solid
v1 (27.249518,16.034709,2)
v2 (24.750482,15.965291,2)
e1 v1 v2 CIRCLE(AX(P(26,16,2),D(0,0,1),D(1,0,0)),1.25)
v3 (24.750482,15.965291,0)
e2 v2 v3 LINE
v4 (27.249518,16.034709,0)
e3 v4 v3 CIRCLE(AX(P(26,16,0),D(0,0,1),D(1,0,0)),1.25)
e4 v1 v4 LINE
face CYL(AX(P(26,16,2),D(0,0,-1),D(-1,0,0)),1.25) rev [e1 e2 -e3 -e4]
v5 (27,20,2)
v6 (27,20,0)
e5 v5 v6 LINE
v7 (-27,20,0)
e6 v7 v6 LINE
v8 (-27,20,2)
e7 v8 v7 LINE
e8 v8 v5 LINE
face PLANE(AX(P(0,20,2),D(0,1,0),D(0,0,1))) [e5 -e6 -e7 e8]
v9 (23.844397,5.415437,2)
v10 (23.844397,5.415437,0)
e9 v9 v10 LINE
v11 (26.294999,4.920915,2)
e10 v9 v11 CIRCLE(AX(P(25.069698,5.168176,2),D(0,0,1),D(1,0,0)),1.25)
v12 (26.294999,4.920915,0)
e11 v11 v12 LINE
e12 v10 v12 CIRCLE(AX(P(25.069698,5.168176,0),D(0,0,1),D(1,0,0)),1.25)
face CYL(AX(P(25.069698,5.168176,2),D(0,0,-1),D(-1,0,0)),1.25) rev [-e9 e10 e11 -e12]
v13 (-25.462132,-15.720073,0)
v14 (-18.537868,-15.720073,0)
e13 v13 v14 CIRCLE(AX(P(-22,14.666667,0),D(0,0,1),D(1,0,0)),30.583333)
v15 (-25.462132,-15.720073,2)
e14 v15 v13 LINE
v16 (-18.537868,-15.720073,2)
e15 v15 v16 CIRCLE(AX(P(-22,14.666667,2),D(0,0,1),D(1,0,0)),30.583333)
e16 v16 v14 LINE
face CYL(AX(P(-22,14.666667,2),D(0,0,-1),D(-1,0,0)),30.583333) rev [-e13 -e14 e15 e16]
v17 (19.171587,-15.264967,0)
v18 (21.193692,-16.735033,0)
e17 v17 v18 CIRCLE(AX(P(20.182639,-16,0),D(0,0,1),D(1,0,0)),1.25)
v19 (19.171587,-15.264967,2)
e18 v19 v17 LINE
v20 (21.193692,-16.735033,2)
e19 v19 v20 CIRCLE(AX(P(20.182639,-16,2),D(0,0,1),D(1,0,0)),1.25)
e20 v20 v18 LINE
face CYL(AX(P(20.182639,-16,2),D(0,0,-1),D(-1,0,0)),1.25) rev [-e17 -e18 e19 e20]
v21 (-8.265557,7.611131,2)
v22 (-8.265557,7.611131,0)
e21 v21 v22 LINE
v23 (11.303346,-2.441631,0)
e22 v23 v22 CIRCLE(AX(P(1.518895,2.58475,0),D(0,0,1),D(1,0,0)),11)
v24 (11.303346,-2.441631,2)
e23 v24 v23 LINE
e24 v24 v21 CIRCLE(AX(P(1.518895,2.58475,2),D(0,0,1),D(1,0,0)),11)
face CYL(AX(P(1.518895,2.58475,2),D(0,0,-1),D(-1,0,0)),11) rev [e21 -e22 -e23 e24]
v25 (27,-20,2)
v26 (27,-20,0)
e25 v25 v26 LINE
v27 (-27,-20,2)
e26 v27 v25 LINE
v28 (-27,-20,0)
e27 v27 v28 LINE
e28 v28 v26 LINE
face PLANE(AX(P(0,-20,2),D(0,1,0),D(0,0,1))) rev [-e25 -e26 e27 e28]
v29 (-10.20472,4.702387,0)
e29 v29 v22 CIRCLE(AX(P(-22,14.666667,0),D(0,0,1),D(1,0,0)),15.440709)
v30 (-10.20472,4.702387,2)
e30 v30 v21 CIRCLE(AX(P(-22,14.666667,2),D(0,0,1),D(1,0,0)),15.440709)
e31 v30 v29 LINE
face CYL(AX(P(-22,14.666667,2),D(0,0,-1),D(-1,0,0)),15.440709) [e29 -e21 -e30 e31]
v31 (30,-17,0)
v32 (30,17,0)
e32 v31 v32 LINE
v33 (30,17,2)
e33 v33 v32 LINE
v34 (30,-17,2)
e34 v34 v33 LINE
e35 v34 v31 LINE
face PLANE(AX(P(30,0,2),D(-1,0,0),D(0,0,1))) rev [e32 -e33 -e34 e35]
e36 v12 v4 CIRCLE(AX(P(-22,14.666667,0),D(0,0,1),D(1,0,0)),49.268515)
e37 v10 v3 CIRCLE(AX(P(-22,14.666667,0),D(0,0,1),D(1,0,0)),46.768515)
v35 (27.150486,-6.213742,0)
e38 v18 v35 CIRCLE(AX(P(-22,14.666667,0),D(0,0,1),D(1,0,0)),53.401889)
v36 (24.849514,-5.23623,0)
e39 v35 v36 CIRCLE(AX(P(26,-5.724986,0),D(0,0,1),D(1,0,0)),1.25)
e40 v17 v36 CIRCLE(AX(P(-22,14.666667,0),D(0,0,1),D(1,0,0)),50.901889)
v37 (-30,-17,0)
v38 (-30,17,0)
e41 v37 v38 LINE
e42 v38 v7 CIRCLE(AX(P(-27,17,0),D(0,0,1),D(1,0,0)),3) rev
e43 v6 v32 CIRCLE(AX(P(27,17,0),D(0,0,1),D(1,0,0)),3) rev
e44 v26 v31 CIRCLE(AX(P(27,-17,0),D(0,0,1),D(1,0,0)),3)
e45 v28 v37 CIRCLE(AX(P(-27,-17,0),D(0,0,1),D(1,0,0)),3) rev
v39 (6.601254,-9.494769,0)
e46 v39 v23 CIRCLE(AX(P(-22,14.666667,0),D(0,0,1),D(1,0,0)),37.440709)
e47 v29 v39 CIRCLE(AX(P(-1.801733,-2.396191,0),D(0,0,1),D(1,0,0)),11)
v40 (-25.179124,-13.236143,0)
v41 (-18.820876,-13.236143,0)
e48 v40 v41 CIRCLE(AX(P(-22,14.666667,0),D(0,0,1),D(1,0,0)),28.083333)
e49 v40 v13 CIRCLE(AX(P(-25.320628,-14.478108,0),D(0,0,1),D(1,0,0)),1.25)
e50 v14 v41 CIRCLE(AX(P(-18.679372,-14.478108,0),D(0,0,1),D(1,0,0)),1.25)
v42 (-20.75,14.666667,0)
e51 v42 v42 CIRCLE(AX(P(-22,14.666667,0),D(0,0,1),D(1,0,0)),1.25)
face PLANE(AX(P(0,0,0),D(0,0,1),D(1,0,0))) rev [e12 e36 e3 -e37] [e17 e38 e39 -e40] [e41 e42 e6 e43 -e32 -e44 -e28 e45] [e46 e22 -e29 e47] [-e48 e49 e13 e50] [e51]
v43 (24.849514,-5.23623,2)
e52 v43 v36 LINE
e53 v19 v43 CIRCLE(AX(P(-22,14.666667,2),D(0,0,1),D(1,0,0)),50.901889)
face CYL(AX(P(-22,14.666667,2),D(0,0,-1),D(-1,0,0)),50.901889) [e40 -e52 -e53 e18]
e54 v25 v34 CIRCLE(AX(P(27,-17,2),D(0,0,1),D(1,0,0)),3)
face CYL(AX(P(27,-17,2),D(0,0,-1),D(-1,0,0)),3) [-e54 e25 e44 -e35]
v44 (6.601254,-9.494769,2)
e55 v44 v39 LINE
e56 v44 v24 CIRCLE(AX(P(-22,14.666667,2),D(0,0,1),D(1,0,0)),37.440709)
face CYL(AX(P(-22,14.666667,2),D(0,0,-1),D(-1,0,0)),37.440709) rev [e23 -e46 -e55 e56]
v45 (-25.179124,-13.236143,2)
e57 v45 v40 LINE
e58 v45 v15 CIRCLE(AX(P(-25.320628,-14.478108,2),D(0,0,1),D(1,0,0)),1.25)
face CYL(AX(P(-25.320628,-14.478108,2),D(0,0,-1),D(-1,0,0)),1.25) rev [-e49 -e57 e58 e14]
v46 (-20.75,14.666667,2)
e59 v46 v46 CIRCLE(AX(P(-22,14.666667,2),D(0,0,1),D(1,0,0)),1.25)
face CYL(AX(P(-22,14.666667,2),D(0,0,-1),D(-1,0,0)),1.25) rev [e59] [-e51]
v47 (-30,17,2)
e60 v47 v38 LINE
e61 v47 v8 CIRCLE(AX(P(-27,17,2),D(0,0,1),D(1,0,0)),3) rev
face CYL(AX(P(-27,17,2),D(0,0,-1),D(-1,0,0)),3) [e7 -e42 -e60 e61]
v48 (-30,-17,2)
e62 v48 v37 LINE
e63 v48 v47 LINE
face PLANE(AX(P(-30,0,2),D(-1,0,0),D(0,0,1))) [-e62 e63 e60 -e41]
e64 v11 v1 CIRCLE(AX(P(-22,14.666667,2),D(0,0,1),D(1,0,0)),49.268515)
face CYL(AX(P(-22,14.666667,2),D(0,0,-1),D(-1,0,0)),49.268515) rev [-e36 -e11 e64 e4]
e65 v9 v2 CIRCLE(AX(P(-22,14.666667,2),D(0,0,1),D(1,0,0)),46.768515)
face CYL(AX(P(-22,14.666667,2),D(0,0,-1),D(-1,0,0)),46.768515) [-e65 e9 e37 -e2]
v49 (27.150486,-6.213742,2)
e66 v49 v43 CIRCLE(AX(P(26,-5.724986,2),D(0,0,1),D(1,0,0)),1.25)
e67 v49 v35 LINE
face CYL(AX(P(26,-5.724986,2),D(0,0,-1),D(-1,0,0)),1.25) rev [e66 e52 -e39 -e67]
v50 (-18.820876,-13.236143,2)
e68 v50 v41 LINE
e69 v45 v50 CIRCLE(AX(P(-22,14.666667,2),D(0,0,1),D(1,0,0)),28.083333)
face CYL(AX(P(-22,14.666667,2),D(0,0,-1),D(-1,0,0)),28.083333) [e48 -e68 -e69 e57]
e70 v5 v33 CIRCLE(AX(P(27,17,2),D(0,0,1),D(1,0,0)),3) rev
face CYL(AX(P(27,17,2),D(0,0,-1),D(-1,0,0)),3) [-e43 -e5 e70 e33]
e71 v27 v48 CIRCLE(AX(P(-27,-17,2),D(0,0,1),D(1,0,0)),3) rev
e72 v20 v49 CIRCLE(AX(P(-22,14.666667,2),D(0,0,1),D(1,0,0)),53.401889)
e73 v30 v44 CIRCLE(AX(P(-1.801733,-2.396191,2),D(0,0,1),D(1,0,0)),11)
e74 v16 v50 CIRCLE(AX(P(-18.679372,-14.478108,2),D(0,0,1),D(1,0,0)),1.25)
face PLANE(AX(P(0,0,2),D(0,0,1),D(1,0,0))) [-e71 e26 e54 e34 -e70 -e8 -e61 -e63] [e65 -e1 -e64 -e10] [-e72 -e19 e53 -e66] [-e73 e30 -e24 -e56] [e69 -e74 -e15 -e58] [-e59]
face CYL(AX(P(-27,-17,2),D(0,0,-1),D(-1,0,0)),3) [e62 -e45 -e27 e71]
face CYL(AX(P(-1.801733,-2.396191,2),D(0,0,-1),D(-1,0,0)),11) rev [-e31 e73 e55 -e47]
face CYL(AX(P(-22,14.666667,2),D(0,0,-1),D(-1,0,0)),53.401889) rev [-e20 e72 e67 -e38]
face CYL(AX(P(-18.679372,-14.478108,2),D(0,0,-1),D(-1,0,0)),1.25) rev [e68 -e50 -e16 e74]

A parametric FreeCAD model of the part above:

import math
import FreeCAD as App
import Part
import Sketcher
Q = App.Units.Quantity

doc = App.newDocument("Part")
params = doc.addObject("Spreadsheet::Sheet", "Params")
for row, (alias, value) in enumerate([
    ("sketch1_radius", "3 mm"),
    ("sketch1_radius2", "11 mm"),
    ("sketch1_diameter", "2.5 mm"),
    ("sketch1_width", "54 mm"),
    ("sketch1_height", "34 mm"),
    ("pad1_length", "2 mm"),
], start=1):
    params.set(f"A{row}", alias)
    params.set(f"B{row}", "=" + value)
    params.setAlias(f"B{row}", alias)

body = doc.addObject("PartDesign::Body", "Body")

# Sketch on XY plane
sketch1 = body.newObject("Sketcher::SketchObject", "Sketch")
sketch1.AttachmentSupport = (doc.getObject("XY_Plane"), [""])
sketch1.MapMode = "FlatFace"
sketch1.addGeometry([
    Part.LineSegment(App.Vector(-27, -20, 0), App.Vector(27, -20, 0)),  # 0
    Part.ArcOfCircle(Part.Circle(App.Vector(27, -17, 0), App.Vector(0, 0, 1), 3), math.radians(-90), math.radians(0)),  # 1
    Part.LineSegment(App.Vector(30, -17, 0), App.Vector(30, 17, 0)),  # 2
    Part.ArcOfCircle(Part.Circle(App.Vector(27, 17, 0), App.Vector(0, 0, 1), 3), math.radians(0), math.radians(90)),  # 3
    Part.LineSegment(App.Vector(27, 20, 0), App.Vector(-27, 20, 0)),  # 4
    Part.ArcOfCircle(Part.Circle(App.Vector(-27, 17, 0), App.Vector(0, 0, 1), 3), math.radians(90), math.radians(180)),  # 5
    Part.LineSegment(App.Vector(-30, 17, 0), App.Vector(-30, -17, 0)),  # 6
    Part.ArcOfCircle(Part.Circle(App.Vector(-27, -17, 0), App.Vector(0, 0, 1), 3), math.radians(180), math.radians(270)),  # 7
    Part.ArcOfCircle(Part.Circle(App.Vector(-22, 14.7, 0), App.Vector(0, 0, 1), 30.6), math.radians(-96.5), math.radians(-83.5)),  # 8
    Part.ArcOfCircle(Part.Circle(App.Vector(-25.3, -14.5, 0), App.Vector(0, 0, 1), 1.2), math.radians(84), math.radians(264)),  # 9
    Part.ArcOfCircle(Part.Circle(App.Vector(-22, 14.7, 0), App.Vector(0, 0, 1), 28.1), math.radians(-96.5), math.radians(-83.5)),  # 10
    Part.ArcOfCircle(Part.Circle(App.Vector(-18.7, -14.5, 0), App.Vector(0, 0, 1), 1.2), math.radians(-84), math.radians(96)),  # 11
    Part.ArcOfCircle(Part.Circle(App.Vector(-22, 14.7, 0), App.Vector(0, 0, 1), 53.4), math.radians(-36.02), math.radians(-23.02)),  # 12
    Part.ArcOfCircle(Part.Circle(App.Vector(20.2, -16, 0), App.Vector(0, 0, 1), 1.2), math.radians(144), math.radians(324)),  # 13
    Part.ArcOfCircle(Part.Circle(App.Vector(-22, 14.7, 0), App.Vector(0, 0, 1), 50.9), math.radians(-36.02), math.radians(-23.02)),  # 14
    Part.ArcOfCircle(Part.Circle(App.Vector(26, -5.7, 0), App.Vector(0, 0, 1), 1.2), math.radians(-23), math.radians(157)),  # 15
    Part.ArcOfCircle(Part.Circle(App.Vector(-22, 14.7, 0), App.Vector(0, 0, 1), 37.4), math.radians(-40.19), math.radians(-27.19)),  # 16
    Part.ArcOfCircle(Part.Circle(App.Vector(-1.8, -2.4, 0), App.Vector(0, 0, 1), 11), math.radians(140), math.radians(320)),  # 17
    Part.ArcOfCircle(Part.Circle(App.Vector(-22, 14.7, 0), App.Vector(0, 0, 1), 15.4), math.radians(-40.19), math.radians(-27.19)),  # 18
    Part.ArcOfCircle(Part.Circle(App.Vector(1.5, 2.6, 0), App.Vector(0, 0, 1), 11), math.radians(-27), math.radians(153)),  # 19
    Part.Circle(App.Vector(-22, 14.7, 0), App.Vector(0, 0, 1), 1.2),  # 20
    Part.ArcOfCircle(Part.Circle(App.Vector(-22, 14.7, 0), App.Vector(0, 0, 1), 49.3), math.radians(-11.41), math.radians(1.59)),  # 21
    Part.ArcOfCircle(Part.Circle(App.Vector(25.1, 5.2, 0), App.Vector(0, 0, 1), 1.2), math.radians(169), math.radians(349)),  # 22
    Part.ArcOfCircle(Part.Circle(App.Vector(-22, 14.7, 0), App.Vector(0, 0, 1), 46.8), math.radians(-11.41), math.radians(1.59)),  # 23
    Part.ArcOfCircle(Part.Circle(App.Vector(26, 16, 0), App.Vector(0, 0, 1), 1.2), math.radians(2), math.radians(182)),  # 24
], False)
sketch1.addConstraint([
    Sketcher.Constraint("Tangent", 0, 2, 1, 1),
    Sketcher.Constraint("Tangent", 1, 2, 2, 1),
    Sketcher.Constraint("Tangent", 2, 2, 3, 1),
    Sketcher.Constraint("Tangent", 3, 2, 4, 1),
    Sketcher.Constraint("Tangent", 4, 2, 5, 1),
    Sketcher.Constraint("Tangent", 5, 2, 6, 1),
    Sketcher.Constraint("Tangent", 6, 2, 7, 1),
    Sketcher.Constraint("Tangent", 7, 2, 0, 1),
    Sketcher.Constraint("Tangent", 8, 1, 9, 2),
    Sketcher.Constraint("Tangent", 9, 1, 10, 1),
    Sketcher.Constraint("Tangent", 10, 2, 11, 2),
    Sketcher.Constraint("Tangent", 11, 1, 8, 2),
    Sketcher.Constraint("Tangent", 12, 1, 13, 2),
    Sketcher.Constraint("Tangent", 13, 1, 14, 1),
    Sketcher.Constraint("Tangent", 14, 2, 15, 2),
    Sketcher.Constraint("Tangent", 15, 1, 12, 2),
    Sketcher.Constraint("Tangent", 16, 1, 17, 2),
    Sketcher.Constraint("Tangent", 17, 1, 18, 1),
    Sketcher.Constraint("Tangent", 18, 2, 19, 2),
    Sketcher.Constraint("Tangent", 19, 1, 16, 2),
    Sketcher.Constraint("Tangent", 21, 1, 22, 2),
    Sketcher.Constraint("Tangent", 22, 1, 23, 1),
    Sketcher.Constraint("Tangent", 23, 2, 24, 2),
    Sketcher.Constraint("Tangent", 24, 1, 21, 2),
    Sketcher.Constraint("Horizontal", 0),
    Sketcher.Constraint("Vertical", 2),
    Sketcher.Constraint("Horizontal", 4),
    Sketcher.Constraint("Vertical", 6),
    Sketcher.Constraint("Coincident", 10, 3, 8, 3),
    Sketcher.Constraint("Coincident", 12, 3, 8, 3),
    Sketcher.Constraint("Coincident", 14, 3, 8, 3),
    Sketcher.Constraint("Coincident", 16, 3, 8, 3),
    Sketcher.Constraint("Coincident", 18, 3, 8, 3),
    Sketcher.Constraint("Coincident", 20, 3, 8, 3),
    Sketcher.Constraint("Coincident", 21, 3, 8, 3),
    Sketcher.Constraint("Coincident", 23, 3, 8, 3),
    Sketcher.Constraint("Equal", 1, 3),
    Sketcher.Constraint("Equal", 3, 5),
    Sketcher.Constraint("Equal", 5, 7),
    Sketcher.Constraint("Equal", 11, 13),
    Sketcher.Constraint("Equal", 15, 20),
    Sketcher.Constraint("Equal", 20, 22),
    Sketcher.Constraint("Symmetric", 1, 3, 5, 3, -1, 1),
    Sketcher.Constraint("Horizontal", 9, 3, 11, 3),
    Sketcher.Constraint("Vertical", 15, 3, 24, 3),
    Sketcher.Constraint("Radius", 1, Q("3 mm")),
    Sketcher.Constraint("Radius", 17, Q("11 mm")),
    Sketcher.Constraint("Diameter", 20, Q("2.5 mm")),
    Sketcher.Constraint("DistanceX", 0, 1, 0, 2, Q("54 mm")),
    Sketcher.Constraint("DistanceY", 2, 1, 2, 2, Q("34 mm")),
    Sketcher.Constraint("DistanceX", 8, 3, -1, 1, Q("22 mm")),
    Sketcher.Constraint("DistanceY", 13, 3, -1, 1, Q("16 mm")),
    Sketcher.Constraint("DistanceX", -1, 1, 15, 3, Q("26 mm")),
    Sketcher.Constraint("DistanceY", -1, 1, 24, 3, Q("16 mm")),
    Sketcher.Constraint("Radius", 12, Q("53.401889 mm")),
    Sketcher.Constraint("Radius", 16, Q("37.440709 mm")),
    Sketcher.Constraint("DistanceX", -1, 1, 21, 1, Q("26.294999 mm")),
    Sketcher.Constraint("Radius", 8, Q("30.583333 mm")),
    Sketcher.Constraint("Radius", 21, Q("49.268515 mm")),
    Sketcher.Constraint("DistanceY", 13, 1, 16, 1, Q("5.770198 mm")),
    Sketcher.Constraint("DistanceY", 14, 2, 19, 1, Q("2.794599 mm")),
    Sketcher.Constraint("DistanceX", 8, 1, -1, 1, Q("25.462132 mm")),
])
sketch1.setExpression("Constraints[45]", "Params.sketch1_radius")
sketch1.setExpression("Constraints[46]", "Params.sketch1_radius2")
sketch1.setExpression("Constraints[47]", "Params.sketch1_diameter")
sketch1.setExpression("Constraints[48]", "Params.sketch1_width")
sketch1.setExpression("Constraints[49]", "Params.sketch1_height")
pad1 = body.newObject("PartDesign::Pad", "Pad")
pad1.Profile = sketch1
pad1.setExpression("Length", "Params.pad1_length")

doc.recompute()
